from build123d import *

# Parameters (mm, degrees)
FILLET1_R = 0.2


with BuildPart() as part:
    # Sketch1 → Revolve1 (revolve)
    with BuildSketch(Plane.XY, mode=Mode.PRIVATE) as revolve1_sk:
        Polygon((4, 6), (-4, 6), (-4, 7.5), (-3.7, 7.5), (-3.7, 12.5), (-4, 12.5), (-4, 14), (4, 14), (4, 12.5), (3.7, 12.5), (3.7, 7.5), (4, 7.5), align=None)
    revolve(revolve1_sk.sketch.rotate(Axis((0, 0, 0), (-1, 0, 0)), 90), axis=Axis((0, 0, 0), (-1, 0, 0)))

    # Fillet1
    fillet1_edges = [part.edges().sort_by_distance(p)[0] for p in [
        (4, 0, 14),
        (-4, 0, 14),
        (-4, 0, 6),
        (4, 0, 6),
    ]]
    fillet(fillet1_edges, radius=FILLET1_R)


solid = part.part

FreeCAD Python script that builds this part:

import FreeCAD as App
import Part
import Sketcher

V = App.Vector
Q = App.Units.Quantity


def edges_at(feature, points):
    """Names of the edges that pass closest to the given points."""
    edges = feature.Shape.Edges
    near = lambda p: min(range(len(edges)), key=lambda i: edges[i].distToShape(Part.Vertex(*p))[0])
    return sorted({f"Edge{near(p) + 1}" for p in points})

doc = App.newDocument("Part")
params = doc.addObject("Spreadsheet::Sheet", "Params")
for row, (alias, value) in enumerate([
    ("sketch1_width", "8 mm"),
    ("sketch1_height", "5 mm"),
    ("sketch1_width2", "0.3 mm"),
    ("sketch1_height2", "1.5 mm"),
    ("revolution_angle", "360 deg"),
    ("fillet_radius", "0.2 mm"),
], start=1):
    params.set(f"A{row}", alias)
    params.set(f"B{row}", "=" + value)
    params.setAlias(f"B{row}", alias)

body = doc.addObject("PartDesign::Body", "Body")

# Sketch on XY plane
sketch1 = doc.addObject("Sketcher::SketchObject", "Sketch")
body.addObject(sketch1)
sketch1.AttachmentSupport = (doc.XY_Plane, [""])
sketch1.MapMode = "FlatFace"
sketch1.addGeometry([
    Part.LineSegment(V(-4, 6, 0), V(4, 6, 0)),  # 0
    Part.LineSegment(V(4, 6, 0), V(4, 7.5, 0)),  # 1
    Part.LineSegment(V(4, 7.5, 0), V(3.7, 7.5, 0)),  # 2
    Part.LineSegment(V(3.7, 7.5, 0), V(3.7, 12.5, 0)),  # 3
    Part.LineSegment(V(3.7, 12.5, 0), V(4, 12.5, 0)),  # 4
    Part.LineSegment(V(4, 12.5, 0), V(4, 14, 0)),  # 5
    Part.LineSegment(V(4, 14, 0), V(-4, 14, 0)),  # 6
    Part.LineSegment(V(-4, 14, 0), V(-4, 12.5, 0)),  # 7
    Part.LineSegment(V(-4, 12.5, 0), V(-3.7, 12.5, 0)),  # 8
    Part.LineSegment(V(-3.7, 12.5, 0), V(-3.7, 7.5, 0)),  # 9
    Part.LineSegment(V(-3.7, 7.5, 0), V(-4, 7.5, 0)),  # 10
    Part.LineSegment(V(-4, 7.5, 0), V(-4, 6, 0)),  # 11
], False)
sketch1.addConstraint([
    Sketcher.Constraint("Coincident", 0, 2, 1, 1),
    Sketcher.Constraint("Coincident", 1, 2, 2, 1),
    Sketcher.Constraint("Coincident", 2, 2, 3, 1),
    Sketcher.Constraint("Coincident", 3, 2, 4, 1),
    Sketcher.Constraint("Coincident", 4, 2, 5, 1),
    Sketcher.Constraint("Coincident", 5, 2, 6, 1),
    Sketcher.Constraint("Coincident", 6, 2, 7, 1),
    Sketcher.Constraint("Coincident", 7, 2, 8, 1),
    Sketcher.Constraint("Coincident", 8, 2, 9, 1),
    Sketcher.Constraint("Coincident", 9, 2, 10, 1),
    Sketcher.Constraint("Coincident", 10, 2, 11, 1),
    Sketcher.Constraint("Coincident", 11, 2, 0, 1),
    Sketcher.Constraint("Horizontal", 0),
    Sketcher.Constraint("Vertical", 1),
    Sketcher.Constraint("Horizontal", 2),
    Sketcher.Constraint("Vertical", 3),
    Sketcher.Constraint("Horizontal", 4),
    Sketcher.Constraint("Vertical", 5),
    Sketcher.Constraint("Horizontal", 6),
    Sketcher.Constraint("Vertical", 7),
    Sketcher.Constraint("Horizontal", 8),
    Sketcher.Constraint("Vertical", 9),
    Sketcher.Constraint("Horizontal", 10),
    Sketcher.Constraint("Vertical", 11),
    Sketcher.Constraint("Symmetric", 4, 2, 7, 2, -2),
    Sketcher.Constraint("Symmetric", 2, 2, 9, 2, -2),
    Sketcher.Constraint("Vertical", 1, 2, 4, 2),
    Sketcher.Constraint("Vertical", 7, 2, 10, 2),
    Sketcher.Constraint("Equal", 1, 5),
    Sketcher.Constraint("DistanceX", 0, 1, 0, 2, Q("8 mm")),
    Sketcher.Constraint("DistanceY", 3, 1, 3, 2, Q("5 mm")),
    Sketcher.Constraint("DistanceX", 2, 2, 2, 1, Q("0.3 mm")),
    Sketcher.Constraint("DistanceY", 1, 1, 1, 2, Q("1.5 mm")),
    Sketcher.Constraint("DistanceY", -1, 1, 0, 2, Q("6 mm")),
])
sketch1.setExpression("Constraints[29]", "Params.sketch1_width")
sketch1.setExpression("Constraints[30]", "Params.sketch1_height")
sketch1.setExpression("Constraints[31]", "Params.sketch1_width2")
sketch1.setExpression("Constraints[32]", "Params.sketch1_height2")
revolution = doc.addObject("PartDesign::Revolution", "Revolution")
body.addObject(revolution)
revolution.Profile = sketch1
revolution.ReferenceAxis = (sketch1, ["H_Axis"])
revolution.setExpression("Angle", "Params.revolution_angle")
doc.recompute()

fillet = doc.addObject("PartDesign::Fillet", "Fillet")
body.addObject(fillet)
fillet.Base = (revolution, edges_at(revolution, [
    (4, 0, 14),
    (-4, 0, 14),
    (-4, 0, 6),
    (4, 0, 6),
]))
fillet.setExpression("Radius", "Params.fillet_radius")

doc.recompute()
